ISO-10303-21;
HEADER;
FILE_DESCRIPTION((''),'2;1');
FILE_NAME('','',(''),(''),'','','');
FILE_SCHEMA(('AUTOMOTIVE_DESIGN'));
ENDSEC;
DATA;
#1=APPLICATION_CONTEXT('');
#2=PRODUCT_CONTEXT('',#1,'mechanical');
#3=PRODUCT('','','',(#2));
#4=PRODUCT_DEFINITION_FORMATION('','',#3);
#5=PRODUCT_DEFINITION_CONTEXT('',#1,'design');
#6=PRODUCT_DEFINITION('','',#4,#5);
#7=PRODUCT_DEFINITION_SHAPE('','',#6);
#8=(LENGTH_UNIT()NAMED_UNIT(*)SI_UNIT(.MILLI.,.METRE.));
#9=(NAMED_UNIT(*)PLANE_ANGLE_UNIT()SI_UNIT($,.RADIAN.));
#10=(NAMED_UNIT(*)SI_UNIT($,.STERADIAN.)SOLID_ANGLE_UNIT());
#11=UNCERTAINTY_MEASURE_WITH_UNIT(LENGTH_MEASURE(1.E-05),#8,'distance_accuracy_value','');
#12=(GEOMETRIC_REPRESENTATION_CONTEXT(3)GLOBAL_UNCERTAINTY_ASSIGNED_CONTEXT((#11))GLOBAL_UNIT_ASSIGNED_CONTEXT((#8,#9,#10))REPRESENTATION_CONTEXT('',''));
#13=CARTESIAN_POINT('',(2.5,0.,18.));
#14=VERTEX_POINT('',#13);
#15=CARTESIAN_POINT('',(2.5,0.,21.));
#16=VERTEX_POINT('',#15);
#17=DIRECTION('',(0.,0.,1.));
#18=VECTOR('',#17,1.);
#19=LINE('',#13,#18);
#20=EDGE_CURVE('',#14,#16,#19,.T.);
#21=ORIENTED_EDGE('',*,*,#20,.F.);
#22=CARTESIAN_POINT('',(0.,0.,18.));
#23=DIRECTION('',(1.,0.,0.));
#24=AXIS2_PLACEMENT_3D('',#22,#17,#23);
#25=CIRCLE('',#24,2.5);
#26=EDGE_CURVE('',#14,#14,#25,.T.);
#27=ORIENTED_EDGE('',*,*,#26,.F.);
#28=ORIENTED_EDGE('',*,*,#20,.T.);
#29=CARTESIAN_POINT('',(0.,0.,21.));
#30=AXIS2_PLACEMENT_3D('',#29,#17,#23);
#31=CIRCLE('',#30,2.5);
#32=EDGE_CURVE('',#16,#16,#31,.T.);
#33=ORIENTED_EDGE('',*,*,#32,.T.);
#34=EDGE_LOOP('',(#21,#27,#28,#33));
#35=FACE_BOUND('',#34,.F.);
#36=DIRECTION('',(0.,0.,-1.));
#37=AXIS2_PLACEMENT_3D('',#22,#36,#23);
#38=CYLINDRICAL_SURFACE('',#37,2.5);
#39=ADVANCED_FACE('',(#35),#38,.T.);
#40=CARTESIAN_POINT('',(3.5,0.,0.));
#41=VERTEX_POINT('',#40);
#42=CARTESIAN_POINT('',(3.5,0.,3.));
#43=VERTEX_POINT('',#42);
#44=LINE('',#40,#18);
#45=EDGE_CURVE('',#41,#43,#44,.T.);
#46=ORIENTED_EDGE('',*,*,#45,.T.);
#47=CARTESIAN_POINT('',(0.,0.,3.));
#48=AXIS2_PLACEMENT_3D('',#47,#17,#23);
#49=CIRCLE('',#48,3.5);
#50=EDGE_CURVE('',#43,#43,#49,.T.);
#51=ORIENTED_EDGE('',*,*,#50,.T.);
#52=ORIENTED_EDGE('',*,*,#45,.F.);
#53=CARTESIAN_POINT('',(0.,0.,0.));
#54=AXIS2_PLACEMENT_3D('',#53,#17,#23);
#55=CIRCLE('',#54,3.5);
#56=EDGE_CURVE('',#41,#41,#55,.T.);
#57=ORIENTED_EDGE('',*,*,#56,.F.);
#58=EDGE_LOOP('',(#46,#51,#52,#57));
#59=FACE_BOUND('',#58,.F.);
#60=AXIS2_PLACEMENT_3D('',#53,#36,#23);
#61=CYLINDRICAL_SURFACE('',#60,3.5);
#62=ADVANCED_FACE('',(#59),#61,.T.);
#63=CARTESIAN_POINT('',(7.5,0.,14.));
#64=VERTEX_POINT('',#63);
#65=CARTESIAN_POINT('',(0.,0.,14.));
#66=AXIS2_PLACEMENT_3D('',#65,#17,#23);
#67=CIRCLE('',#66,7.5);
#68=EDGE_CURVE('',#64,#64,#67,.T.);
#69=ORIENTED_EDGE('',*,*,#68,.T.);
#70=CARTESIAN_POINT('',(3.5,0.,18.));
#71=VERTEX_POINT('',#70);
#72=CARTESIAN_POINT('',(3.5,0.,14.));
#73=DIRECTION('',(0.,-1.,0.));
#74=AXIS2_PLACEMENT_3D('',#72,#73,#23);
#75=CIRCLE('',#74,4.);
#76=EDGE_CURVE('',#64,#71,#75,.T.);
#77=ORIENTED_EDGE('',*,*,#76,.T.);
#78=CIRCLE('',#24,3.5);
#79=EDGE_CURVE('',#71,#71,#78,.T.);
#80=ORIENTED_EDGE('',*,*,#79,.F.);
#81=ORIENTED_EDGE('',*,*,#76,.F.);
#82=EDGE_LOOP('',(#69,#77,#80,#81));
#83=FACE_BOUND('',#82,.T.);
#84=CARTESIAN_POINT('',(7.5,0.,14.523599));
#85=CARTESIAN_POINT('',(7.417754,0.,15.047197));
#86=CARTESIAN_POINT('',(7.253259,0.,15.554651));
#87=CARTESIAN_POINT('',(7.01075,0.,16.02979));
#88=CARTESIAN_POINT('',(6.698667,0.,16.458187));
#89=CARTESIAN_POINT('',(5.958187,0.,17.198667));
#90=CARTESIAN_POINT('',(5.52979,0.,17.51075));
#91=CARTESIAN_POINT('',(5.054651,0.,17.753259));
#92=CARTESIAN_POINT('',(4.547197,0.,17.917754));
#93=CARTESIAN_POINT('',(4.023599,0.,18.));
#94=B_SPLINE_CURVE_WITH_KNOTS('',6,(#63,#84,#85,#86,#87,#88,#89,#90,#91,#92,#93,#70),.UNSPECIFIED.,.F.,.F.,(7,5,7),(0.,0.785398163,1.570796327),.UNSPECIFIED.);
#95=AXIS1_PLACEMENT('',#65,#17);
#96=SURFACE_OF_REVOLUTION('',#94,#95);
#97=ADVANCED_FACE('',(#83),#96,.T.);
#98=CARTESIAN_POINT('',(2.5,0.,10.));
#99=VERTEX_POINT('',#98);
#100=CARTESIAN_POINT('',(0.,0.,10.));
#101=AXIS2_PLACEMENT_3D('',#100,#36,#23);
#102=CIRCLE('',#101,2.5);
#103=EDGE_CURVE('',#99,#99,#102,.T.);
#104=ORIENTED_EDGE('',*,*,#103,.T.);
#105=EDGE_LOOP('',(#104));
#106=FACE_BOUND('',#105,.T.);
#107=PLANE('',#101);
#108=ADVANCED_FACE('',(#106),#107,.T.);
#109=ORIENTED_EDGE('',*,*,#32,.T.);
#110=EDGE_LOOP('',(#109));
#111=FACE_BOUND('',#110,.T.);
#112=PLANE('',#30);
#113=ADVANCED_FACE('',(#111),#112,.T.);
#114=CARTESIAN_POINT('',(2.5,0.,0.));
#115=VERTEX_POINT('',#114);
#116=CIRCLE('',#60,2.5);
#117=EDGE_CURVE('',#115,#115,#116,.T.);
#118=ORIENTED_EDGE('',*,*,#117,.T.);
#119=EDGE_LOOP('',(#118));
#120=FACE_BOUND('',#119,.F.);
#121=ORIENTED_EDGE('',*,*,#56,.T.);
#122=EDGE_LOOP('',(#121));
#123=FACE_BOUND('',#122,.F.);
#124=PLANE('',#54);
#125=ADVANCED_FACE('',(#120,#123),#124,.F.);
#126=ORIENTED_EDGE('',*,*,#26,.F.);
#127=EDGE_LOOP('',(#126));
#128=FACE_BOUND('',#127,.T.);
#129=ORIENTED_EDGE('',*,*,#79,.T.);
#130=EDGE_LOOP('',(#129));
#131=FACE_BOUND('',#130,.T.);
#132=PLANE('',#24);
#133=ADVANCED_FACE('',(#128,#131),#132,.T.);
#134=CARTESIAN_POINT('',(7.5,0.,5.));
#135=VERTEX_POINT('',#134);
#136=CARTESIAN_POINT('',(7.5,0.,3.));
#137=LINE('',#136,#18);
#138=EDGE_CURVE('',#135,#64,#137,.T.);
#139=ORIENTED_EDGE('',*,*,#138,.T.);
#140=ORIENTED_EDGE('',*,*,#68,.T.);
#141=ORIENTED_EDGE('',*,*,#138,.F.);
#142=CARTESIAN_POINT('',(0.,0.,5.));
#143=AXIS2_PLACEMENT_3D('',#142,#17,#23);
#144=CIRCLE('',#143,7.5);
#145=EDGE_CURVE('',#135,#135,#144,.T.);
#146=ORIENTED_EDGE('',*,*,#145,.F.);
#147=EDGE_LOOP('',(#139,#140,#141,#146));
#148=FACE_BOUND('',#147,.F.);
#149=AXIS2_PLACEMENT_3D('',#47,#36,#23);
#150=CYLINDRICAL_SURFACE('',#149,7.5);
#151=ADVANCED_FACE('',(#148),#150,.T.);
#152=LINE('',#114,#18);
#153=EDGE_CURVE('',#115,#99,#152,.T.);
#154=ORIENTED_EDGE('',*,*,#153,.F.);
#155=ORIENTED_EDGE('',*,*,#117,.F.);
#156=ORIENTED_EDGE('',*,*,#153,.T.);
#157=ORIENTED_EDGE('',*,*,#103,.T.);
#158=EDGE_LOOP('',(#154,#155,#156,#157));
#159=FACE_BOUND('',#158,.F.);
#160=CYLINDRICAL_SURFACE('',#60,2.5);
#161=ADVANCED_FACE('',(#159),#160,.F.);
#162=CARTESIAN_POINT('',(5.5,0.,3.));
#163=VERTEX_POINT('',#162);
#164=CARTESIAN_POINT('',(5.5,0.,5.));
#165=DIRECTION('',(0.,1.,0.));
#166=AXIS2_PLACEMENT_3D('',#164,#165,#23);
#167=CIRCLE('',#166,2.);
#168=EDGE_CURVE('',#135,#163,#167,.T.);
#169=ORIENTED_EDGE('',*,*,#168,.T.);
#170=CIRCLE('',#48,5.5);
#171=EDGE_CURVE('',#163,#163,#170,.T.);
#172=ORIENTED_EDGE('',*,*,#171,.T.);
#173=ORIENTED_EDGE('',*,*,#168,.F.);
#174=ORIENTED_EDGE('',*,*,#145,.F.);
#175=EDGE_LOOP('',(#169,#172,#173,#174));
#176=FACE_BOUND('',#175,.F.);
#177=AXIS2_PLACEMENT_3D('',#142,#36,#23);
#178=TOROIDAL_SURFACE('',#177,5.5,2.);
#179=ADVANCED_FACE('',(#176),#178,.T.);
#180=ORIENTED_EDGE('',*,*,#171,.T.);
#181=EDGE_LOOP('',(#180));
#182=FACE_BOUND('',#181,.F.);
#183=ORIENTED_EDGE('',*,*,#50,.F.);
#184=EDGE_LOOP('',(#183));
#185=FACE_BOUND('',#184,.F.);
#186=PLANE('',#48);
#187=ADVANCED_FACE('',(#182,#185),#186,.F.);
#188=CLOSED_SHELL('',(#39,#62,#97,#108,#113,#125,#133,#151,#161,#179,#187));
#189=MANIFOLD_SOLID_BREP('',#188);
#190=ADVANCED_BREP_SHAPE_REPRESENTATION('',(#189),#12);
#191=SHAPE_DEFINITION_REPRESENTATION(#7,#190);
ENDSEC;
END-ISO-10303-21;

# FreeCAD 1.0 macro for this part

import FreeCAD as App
import Part
import Sketcher
Q = App.Units.Quantity


def edges_at(feature, points):
    """Names of the edges that pass closest to the given points."""
    edges = feature.Shape.Edges
    near = lambda p: min(range(len(edges)), key=lambda i: edges[i].distToShape(Part.Vertex(*p))[0])
    return sorted({f"Edge{near(p) + 1}" for p in points})

doc = App.newDocument("Part")
body = doc.addObject("PartDesign::Body", "Body")

# Sketch on XY plane
sketch1 = body.newObject("Sketcher::SketchObject", "Sketch")
sketch1.AttachmentSupport = (doc.getObject("XY_Plane"), [""])
sketch1.MapMode = "FlatFace"
sketch1.addGeometry(Part.Circle(App.Vector(0, 0, 0), App.Vector(0, 0, 1), 3.5), False)
sketch1.addConstraint(Sketcher.Constraint("Coincident", 0, 3, -1, 1))
sketch1.addConstraint(Sketcher.Constraint("Diameter", 0, Q("7 mm")))
pad1 = body.newObject("PartDesign::Pad", "Pad")
pad1.Profile = sketch1
pad1.Length = 3

# Sketch on XY plane
sketch2 = body.newObject("Sketcher::SketchObject", "Sketch001")
sketch2.AttachmentSupport = (doc.getObject("XY_Plane"), [""])
sketch2.MapMode = "FlatFace"
sketch2.AttachmentOffset = App.Placement(App.Vector(0, 0, 3), App.Rotation())
sketch2.addGeometry(Part.Circle(App.Vector(0, 0, 0), App.Vector(0, 0, 1), 8), False)
sketch2.addConstraint(Sketcher.Constraint("Coincident", 0, 3, -1, 1))
sketch2.addConstraint(Sketcher.Constraint("Diameter", 0, Q("15 mm")))
pad2 = body.newObject("PartDesign::Pad", "Pad001")
pad2.Profile = sketch2
pad2.Length = 15

# Sketch on XY plane
sketch3 = body.newObject("Sketcher::SketchObject", "Sketch002")
sketch3.AttachmentSupport = (doc.getObject("XY_Plane"), [""])
sketch3.MapMode = "FlatFace"
sketch3.AttachmentOffset = App.Placement(App.Vector(0, 0, 18), App.Rotation())
sketch3.addGeometry(Part.Circle(App.Vector(0, 0, 0), App.Vector(0, 0, 1), 2.5), False)
sketch3.addConstraint(Sketcher.Constraint("Coincident", 0, 3, -1, 1))
sketch3.addConstraint(Sketcher.Constraint("Diameter", 0, Q("5 mm")))
pad3 = body.newObject("PartDesign::Pad", "Pad002")
pad3.Profile = sketch3
pad3.Length = 3

# Sketch on XY plane
sketch4 = body.newObject("Sketcher::SketchObject", "Sketch003")
sketch4.AttachmentSupport = (doc.getObject("XY_Plane"), [""])
sketch4.MapMode = "FlatFace"
sketch4.addGeometry(Part.Circle(App.Vector(0, 0, 0), App.Vector(0, 0, 1), 2.5), False)
sketch4.addConstraint(Sketcher.Constraint("Coincident", 0, 3, -1, 1))
sketch4.addConstraint(Sketcher.Constraint("Diameter", 0, Q("5 mm")))
pocket1 = body.newObject("PartDesign::Pocket", "Pocket")
pocket1.Profile = sketch4
pocket1.Length = 10
pocket1.Reversed = True
doc.recompute()

fillet = body.newObject("PartDesign::Fillet", "Fillet")
fillet.Base = (pocket1, edges_at(pocket1, [(-7.5, 0, 18)]))
fillet.Radius = 4
doc.recompute()

fillet2 = body.newObject("PartDesign::Fillet", "Fillet001")
fillet2.Base = (fillet, edges_at(fillet, [(-7.5, 0, 3)]))
fillet2.Radius = 2

doc.recompute()
